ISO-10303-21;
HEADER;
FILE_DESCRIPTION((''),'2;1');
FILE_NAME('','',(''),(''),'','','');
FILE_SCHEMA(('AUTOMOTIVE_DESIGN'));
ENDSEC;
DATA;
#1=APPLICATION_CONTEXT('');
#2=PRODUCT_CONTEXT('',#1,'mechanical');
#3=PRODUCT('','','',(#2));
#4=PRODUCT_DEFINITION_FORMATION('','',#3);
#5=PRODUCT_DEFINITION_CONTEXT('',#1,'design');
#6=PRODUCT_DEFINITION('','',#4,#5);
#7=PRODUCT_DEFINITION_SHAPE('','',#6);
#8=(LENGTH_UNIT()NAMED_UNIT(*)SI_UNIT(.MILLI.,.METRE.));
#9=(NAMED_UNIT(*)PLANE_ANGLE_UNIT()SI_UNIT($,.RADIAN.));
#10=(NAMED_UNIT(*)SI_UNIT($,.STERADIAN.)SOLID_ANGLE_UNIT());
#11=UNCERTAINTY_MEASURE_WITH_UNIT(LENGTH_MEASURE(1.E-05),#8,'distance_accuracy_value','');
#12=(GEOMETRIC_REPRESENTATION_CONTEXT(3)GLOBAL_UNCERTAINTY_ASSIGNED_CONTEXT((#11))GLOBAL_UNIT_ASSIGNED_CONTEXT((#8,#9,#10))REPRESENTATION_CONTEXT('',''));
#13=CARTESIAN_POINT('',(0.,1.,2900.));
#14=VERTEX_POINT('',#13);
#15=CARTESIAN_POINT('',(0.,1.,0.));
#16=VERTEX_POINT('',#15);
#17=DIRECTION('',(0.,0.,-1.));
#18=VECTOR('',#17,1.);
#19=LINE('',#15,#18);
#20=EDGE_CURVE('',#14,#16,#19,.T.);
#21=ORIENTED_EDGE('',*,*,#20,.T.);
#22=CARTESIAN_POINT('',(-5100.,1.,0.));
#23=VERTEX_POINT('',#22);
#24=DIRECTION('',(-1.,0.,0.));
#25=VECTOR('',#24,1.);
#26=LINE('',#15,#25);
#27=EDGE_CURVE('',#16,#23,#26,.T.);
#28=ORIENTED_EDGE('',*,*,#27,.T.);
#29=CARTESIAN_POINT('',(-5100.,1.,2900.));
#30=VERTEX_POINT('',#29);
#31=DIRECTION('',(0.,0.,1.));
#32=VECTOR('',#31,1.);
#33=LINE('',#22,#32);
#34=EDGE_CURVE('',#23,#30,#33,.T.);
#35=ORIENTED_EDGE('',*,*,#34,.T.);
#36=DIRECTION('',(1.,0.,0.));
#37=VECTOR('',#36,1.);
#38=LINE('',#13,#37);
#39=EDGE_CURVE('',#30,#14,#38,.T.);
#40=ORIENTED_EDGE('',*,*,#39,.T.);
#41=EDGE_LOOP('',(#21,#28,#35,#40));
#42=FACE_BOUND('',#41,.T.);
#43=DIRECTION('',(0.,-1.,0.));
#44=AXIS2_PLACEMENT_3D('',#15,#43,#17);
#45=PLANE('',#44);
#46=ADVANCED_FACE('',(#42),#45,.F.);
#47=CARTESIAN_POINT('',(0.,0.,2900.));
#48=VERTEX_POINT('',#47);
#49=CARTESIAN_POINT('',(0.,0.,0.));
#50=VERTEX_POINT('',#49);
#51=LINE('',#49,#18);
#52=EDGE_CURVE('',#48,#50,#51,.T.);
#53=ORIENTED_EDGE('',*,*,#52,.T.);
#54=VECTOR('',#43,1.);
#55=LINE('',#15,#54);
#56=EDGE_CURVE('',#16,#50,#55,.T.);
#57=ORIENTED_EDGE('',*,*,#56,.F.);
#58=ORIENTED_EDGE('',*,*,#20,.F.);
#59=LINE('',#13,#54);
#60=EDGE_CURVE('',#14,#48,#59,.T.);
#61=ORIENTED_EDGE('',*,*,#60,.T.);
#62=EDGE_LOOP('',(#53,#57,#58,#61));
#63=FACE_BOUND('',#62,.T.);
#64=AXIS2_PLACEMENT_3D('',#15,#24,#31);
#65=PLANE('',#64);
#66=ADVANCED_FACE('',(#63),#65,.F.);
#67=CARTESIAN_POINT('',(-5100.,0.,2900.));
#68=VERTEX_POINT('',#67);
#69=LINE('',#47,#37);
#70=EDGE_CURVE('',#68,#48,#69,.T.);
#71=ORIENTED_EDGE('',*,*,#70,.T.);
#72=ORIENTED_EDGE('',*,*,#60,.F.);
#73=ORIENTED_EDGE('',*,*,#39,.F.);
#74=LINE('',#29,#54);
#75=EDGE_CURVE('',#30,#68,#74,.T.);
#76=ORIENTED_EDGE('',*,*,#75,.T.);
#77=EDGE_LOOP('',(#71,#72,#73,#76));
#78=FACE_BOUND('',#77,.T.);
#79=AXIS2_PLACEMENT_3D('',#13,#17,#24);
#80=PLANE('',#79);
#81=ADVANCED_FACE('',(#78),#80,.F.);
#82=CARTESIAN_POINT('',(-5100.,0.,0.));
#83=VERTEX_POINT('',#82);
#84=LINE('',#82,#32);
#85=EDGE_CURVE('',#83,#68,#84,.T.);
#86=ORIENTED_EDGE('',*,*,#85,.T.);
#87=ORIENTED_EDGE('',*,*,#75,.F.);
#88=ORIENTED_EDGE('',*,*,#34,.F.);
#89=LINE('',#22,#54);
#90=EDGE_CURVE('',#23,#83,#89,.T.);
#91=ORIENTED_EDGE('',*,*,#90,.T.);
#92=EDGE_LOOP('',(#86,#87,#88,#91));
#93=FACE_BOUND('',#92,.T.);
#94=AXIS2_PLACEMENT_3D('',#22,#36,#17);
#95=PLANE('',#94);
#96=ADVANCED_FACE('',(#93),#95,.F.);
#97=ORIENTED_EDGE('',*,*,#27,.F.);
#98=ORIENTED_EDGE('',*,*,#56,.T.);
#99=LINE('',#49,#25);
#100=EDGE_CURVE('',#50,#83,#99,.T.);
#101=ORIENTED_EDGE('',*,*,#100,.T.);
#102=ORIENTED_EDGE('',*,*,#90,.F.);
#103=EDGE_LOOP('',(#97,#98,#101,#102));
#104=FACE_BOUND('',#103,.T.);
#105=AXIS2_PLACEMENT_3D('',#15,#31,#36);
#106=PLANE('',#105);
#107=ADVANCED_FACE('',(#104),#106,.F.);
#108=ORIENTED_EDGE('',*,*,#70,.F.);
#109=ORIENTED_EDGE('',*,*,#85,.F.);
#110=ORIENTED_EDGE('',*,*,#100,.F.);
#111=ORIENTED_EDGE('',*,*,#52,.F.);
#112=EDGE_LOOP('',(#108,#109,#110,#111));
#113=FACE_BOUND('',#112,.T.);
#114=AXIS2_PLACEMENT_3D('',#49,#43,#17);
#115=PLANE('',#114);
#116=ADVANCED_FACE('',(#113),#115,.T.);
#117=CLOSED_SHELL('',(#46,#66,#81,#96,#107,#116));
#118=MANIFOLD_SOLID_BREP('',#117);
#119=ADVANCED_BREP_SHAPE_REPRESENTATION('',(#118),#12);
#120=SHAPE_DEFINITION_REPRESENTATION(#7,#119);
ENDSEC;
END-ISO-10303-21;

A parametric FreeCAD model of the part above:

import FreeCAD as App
import Part
import Sketcher

V = App.Vector

doc = App.newDocument("Part")
body = doc.addObject("PartDesign::Body", "Body")

sketch1 = doc.addObject("Sketcher::SketchObject", "Sketch")
body.addObject(sketch1)
sketch1.AttachmentSupport = (doc.XZ_Plane, [""])
sketch1.MapMode = "FlatFace"
sketch1.addGeometry([
    Part.LineSegment(V(-5100, 0, 0), V(-5100, 2900, 0)),
    Part.LineSegment(V(-5100, 2900, 0), V(0, 2900, 0)),
    Part.LineSegment(V(0, 2900, 0), V(0, 0, 0)),
    Part.LineSegment(V(0, 0, 0), V(-5100, 0, 0)),
], False)
sketch1.addConstraint([
    Sketcher.Constraint("Coincident", 0, 2, 1, 1),
    Sketcher.Constraint("Coincident", 1, 2, 2, 1),
    Sketcher.Constraint("Coincident", 2, 2, 3, 1),
    Sketcher.Constraint("Coincident", 3, 2, 0, 1),
    Sketcher.Constraint("Vertical", 0),
    Sketcher.Constraint("Horizontal", 1),
    Sketcher.Constraint("Vertical", 2),
    Sketcher.Constraint("Horizontal", 3),
    Sketcher.Constraint("Coincident", 2, 2, -1, 1),
    Sketcher.Constraint("DistanceX", 1, 1, 1, 2, 5100.0),
    Sketcher.Constraint("DistanceY", 0, 1, 0, 2, 2900.0),
])
pad1 = doc.addObject("PartDesign::Pad", "Pad")
body.addObject(pad1)
pad1.Profile = sketch1
pad1.Length = 1
pad1.Reversed = True

doc.recompute()
